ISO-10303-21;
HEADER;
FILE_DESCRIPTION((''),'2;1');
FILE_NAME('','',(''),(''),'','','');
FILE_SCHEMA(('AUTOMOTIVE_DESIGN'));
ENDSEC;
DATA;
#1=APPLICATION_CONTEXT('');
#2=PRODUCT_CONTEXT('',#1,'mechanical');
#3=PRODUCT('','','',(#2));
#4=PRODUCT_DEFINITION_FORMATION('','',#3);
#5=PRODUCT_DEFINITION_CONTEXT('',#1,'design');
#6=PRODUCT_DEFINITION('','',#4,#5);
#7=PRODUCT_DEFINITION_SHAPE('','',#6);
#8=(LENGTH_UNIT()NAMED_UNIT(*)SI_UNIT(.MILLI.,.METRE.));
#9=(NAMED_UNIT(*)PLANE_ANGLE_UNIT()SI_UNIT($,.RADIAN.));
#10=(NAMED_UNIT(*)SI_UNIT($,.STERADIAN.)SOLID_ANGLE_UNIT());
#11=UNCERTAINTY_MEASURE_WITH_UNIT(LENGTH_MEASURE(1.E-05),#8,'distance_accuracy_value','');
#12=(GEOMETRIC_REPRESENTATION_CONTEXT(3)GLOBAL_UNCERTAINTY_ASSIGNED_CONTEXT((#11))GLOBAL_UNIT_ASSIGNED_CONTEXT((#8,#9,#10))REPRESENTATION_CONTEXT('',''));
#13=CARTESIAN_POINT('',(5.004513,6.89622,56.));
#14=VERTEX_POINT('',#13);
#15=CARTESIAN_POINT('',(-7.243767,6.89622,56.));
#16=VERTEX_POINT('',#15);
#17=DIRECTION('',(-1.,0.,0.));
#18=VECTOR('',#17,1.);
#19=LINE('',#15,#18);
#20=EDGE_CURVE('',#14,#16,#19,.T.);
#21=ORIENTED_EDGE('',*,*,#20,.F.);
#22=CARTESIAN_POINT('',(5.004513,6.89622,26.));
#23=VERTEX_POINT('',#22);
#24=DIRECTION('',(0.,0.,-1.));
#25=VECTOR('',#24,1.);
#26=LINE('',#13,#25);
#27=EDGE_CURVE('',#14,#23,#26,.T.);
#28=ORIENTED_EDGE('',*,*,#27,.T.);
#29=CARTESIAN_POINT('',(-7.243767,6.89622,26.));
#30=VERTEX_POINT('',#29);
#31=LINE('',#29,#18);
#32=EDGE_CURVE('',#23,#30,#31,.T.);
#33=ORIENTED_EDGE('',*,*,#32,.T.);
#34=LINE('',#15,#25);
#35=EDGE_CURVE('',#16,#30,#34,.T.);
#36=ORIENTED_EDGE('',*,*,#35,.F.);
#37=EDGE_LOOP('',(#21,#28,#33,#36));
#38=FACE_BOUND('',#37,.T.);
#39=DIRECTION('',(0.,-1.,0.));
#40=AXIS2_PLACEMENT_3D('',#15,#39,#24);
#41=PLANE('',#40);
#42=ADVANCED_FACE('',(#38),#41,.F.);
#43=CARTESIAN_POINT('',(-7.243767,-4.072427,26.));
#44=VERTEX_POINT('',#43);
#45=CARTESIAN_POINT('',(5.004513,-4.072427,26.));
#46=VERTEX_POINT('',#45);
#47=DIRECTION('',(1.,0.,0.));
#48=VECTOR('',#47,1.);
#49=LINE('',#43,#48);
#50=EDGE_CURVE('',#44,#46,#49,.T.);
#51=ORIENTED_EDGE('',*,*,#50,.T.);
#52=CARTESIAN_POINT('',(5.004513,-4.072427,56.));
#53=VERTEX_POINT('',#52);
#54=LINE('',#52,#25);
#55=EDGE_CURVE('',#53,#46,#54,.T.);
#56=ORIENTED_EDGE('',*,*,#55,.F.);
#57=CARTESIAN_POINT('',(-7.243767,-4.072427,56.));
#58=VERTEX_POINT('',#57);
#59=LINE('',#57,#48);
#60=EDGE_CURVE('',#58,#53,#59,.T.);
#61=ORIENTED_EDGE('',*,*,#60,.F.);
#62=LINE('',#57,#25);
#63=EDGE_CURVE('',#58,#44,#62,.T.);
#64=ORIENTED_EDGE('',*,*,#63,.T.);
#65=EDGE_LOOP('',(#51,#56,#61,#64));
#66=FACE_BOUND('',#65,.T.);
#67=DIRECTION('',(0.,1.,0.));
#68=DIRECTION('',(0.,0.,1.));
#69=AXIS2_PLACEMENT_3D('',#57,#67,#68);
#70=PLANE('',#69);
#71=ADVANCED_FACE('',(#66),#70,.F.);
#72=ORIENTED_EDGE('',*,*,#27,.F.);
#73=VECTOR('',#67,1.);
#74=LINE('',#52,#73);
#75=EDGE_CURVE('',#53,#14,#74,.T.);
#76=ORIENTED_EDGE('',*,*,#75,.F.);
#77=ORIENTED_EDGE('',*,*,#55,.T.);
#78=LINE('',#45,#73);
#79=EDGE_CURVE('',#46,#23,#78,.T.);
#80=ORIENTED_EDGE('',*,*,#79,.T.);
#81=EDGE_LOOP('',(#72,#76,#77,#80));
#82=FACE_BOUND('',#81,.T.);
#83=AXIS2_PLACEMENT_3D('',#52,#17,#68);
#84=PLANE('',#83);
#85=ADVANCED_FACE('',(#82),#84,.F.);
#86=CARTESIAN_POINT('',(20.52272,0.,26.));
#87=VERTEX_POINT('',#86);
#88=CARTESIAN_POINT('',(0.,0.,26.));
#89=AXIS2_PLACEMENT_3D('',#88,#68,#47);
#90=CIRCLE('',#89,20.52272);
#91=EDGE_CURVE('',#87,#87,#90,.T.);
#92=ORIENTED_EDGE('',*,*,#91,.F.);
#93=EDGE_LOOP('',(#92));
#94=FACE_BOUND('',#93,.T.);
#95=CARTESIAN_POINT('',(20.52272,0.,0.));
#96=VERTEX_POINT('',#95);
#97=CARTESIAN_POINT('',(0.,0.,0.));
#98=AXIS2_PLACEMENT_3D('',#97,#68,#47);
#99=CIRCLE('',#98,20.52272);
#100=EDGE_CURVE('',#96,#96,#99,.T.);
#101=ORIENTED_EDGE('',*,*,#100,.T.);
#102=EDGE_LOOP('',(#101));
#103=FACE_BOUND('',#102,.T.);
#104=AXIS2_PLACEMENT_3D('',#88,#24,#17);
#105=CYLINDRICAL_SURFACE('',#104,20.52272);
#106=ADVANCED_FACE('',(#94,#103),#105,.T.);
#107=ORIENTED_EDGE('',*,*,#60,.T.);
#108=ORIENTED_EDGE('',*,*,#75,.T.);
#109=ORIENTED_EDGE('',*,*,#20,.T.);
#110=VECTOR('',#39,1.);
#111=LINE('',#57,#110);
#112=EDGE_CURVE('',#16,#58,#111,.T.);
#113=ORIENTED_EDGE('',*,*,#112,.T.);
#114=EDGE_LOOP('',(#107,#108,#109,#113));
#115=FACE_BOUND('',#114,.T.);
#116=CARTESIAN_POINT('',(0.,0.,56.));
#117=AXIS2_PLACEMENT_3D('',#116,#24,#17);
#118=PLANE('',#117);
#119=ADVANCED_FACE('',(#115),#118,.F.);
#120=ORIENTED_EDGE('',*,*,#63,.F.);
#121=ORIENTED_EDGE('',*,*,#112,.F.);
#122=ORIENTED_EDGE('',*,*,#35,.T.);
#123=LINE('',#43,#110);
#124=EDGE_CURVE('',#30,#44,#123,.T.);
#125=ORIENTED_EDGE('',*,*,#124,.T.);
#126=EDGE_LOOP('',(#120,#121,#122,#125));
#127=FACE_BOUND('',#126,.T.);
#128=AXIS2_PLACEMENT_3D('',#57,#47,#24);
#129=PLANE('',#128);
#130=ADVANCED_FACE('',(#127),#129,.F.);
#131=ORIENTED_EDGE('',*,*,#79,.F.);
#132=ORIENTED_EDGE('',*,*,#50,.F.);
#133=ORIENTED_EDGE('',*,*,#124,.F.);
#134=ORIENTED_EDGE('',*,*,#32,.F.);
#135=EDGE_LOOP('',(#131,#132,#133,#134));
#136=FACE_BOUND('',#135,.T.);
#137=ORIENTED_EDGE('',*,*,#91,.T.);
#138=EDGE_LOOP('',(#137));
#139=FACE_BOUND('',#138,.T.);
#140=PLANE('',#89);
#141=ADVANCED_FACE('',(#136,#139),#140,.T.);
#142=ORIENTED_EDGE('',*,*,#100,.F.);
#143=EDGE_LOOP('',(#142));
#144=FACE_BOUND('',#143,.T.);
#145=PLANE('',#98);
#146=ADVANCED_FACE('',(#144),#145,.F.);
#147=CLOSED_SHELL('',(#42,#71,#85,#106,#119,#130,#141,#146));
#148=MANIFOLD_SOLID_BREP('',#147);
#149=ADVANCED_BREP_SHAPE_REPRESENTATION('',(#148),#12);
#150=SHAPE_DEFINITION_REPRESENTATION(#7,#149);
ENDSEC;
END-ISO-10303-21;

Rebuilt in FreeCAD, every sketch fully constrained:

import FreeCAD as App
import Part
import Sketcher

V = App.Vector
Q = App.Units.Quantity


def add_polygon(sketch, points):
    """Adds a closed chain of lines whose ends are joined by coincident constraints."""
    first, n = sketch.GeometryCount, len(points)
    for a, b in zip(points, points[1:] + points[:1]):
        sketch.addGeometry(Part.LineSegment(App.Vector(*a, 0), App.Vector(*b, 0)), False)
    for i in range(n):
        sketch.addConstraint(Sketcher.Constraint("Coincident", first + i, 2, first + (i + 1) % n, 1))

doc = App.newDocument("Part")
body = doc.addObject("PartDesign::Body", "Body")

sketch1 = body.newObject("Sketcher::SketchObject", "Sketch")
sketch1.AttachmentSupport = (doc.getObject("XY_Plane"), [""])
sketch1.MapMode = "FlatFace"
sketch1.addGeometry(Part.Circle(V(0, 0, 0), V(0, 0, 1), 21), False)
sketch1.addConstraint([
    Sketcher.Constraint("Coincident", 0, 3, -1, 1),
    Sketcher.Constraint("Diameter", 0, Q("41.04544 mm")),
])
pad1 = body.newObject("PartDesign::Pad", "Pad")
pad1.Profile = sketch1
pad1.Length = 26

sketch2 = body.newObject("Sketcher::SketchObject", "Sketch001")
sketch2.AttachmentSupport = (doc.getObject("XY_Plane"), [""])
sketch2.MapMode = "FlatFace"
sketch2.AttachmentOffset = App.Placement(V(0, 0, 26), App.Rotation())
add_polygon(sketch2, [(-7, 7), (-7, -4), (5, -4), (5, 7)])
sketch2.addConstraint([
    Sketcher.Constraint("Vertical", 0),
    Sketcher.Constraint("Horizontal", 1),
    Sketcher.Constraint("Vertical", 2),
    Sketcher.Constraint("Horizontal", 3),
    Sketcher.Constraint("DistanceX", 1, 1, 1, 2, Q("12.24828 mm")),
    Sketcher.Constraint("DistanceY", 0, 2, 0, 1, Q("10.968647 mm")),
    Sketcher.Constraint("DistanceY", -1, 1, 2, 2, Q("6.89622 mm")),
    Sketcher.Constraint("DistanceX", 0, 2, -1, 1, Q("7.243767 mm")),
])
pad2 = body.newObject("PartDesign::Pad", "Pad001")
pad2.Profile = sketch2
pad2.Length = 30

doc.recompute()
